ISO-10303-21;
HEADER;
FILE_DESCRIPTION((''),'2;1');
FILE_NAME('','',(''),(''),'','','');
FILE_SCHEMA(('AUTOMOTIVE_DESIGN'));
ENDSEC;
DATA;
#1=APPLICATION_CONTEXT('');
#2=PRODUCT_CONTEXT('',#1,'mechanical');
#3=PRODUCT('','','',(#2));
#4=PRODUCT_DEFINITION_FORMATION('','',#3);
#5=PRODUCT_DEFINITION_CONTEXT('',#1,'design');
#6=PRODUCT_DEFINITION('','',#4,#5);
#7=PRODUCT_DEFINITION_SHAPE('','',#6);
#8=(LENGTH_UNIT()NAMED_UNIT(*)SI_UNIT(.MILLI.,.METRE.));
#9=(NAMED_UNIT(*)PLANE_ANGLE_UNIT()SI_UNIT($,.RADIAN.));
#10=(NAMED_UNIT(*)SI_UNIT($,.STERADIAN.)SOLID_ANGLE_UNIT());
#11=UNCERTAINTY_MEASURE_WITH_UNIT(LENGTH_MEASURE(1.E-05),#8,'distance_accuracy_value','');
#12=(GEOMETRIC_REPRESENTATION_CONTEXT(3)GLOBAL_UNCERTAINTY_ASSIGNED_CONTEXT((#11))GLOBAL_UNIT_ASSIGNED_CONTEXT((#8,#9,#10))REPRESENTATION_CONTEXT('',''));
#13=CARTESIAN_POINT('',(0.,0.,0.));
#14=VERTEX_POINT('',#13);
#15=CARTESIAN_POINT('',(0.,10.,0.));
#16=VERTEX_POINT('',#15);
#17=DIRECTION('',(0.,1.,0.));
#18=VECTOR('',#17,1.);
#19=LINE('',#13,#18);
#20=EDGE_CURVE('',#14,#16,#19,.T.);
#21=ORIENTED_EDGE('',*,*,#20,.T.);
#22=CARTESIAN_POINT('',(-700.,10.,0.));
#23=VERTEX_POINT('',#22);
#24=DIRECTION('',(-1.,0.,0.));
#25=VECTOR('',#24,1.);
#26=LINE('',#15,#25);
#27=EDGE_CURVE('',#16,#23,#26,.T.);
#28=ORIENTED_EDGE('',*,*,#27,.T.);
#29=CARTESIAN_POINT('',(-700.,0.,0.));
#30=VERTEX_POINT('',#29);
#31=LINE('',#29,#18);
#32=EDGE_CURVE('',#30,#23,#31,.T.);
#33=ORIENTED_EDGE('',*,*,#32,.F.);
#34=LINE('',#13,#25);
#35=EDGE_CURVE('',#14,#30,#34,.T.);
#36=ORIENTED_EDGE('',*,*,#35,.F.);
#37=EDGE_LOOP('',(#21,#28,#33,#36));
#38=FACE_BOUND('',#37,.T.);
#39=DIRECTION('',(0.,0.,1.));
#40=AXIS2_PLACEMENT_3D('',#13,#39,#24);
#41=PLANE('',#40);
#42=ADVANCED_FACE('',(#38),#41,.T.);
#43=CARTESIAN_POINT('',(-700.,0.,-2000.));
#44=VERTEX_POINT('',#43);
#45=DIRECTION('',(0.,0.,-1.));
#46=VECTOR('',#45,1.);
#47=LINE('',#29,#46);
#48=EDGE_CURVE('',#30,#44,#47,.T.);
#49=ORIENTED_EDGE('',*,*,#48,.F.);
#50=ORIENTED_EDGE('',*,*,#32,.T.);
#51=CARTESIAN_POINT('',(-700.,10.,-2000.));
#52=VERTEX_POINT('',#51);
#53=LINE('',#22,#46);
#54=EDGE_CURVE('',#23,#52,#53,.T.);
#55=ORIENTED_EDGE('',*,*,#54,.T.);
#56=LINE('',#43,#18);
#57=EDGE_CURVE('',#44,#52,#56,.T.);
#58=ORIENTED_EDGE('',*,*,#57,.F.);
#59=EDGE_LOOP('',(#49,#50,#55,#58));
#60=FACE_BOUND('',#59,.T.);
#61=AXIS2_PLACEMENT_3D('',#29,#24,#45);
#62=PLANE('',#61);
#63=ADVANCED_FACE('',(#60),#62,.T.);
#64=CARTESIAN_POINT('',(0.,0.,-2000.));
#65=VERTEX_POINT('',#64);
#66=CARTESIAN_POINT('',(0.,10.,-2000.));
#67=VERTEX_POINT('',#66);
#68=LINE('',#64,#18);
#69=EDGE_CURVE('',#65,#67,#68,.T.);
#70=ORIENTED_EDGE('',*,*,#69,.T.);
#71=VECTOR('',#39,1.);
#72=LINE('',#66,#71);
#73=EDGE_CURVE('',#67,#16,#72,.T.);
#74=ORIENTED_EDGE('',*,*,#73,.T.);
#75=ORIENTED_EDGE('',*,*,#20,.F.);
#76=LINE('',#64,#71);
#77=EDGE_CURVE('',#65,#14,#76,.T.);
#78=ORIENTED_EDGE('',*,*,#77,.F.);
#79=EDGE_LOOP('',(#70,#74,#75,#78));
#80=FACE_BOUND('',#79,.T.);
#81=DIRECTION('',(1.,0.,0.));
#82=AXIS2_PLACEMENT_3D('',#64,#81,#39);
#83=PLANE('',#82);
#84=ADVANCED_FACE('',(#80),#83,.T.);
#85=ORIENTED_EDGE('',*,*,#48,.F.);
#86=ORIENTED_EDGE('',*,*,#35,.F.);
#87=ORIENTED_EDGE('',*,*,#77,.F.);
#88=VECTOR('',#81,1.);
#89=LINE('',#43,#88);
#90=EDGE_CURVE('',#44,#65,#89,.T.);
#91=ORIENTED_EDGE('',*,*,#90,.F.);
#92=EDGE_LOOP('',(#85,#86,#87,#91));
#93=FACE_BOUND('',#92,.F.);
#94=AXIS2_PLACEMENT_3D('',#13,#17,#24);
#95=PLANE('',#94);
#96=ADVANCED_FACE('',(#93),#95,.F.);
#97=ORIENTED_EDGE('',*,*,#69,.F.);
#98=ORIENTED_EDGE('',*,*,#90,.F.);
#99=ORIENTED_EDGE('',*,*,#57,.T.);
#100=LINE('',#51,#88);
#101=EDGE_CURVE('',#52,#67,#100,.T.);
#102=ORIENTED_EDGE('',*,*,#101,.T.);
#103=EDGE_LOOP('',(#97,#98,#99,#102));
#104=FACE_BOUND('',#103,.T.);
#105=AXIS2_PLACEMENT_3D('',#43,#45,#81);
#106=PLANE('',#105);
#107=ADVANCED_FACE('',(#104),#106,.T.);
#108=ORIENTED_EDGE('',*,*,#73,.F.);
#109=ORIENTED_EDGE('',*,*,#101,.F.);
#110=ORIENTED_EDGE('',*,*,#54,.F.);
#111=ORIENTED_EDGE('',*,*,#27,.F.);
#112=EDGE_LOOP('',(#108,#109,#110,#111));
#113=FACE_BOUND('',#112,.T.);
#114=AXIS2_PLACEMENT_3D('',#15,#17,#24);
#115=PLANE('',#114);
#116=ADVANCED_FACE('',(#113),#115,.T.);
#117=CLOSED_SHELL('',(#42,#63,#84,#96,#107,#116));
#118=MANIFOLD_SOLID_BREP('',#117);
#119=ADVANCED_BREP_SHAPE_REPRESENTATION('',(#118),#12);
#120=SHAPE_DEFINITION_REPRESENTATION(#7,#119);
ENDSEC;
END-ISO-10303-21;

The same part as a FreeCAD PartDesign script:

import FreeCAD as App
import Part
import Sketcher
Q = App.Units.Quantity


def add_polygon(sketch, points):
    """Adds a closed chain of lines whose ends are joined by coincident constraints."""
    first, n = sketch.GeometryCount, len(points)
    for a, b in zip(points, points[1:] + points[:1]):
        sketch.addGeometry(Part.LineSegment(App.Vector(*a, 0), App.Vector(*b, 0)), False)
    for i in range(n):
        sketch.addConstraint(Sketcher.Constraint("Coincident", first + i, 2, first + (i + 1) % n, 1))

doc = App.newDocument("Part")
params = doc.addObject("Spreadsheet::Sheet", "Params")
for row, (alias, value) in enumerate([
    ("sketch1_width", "700 mm"),
    ("sketch1_height", "2000 mm"),
    ("pad1_length", "10 mm"),
], start=1):
    params.set(f"A{row}", alias)
    params.set(f"B{row}", "=" + value)
    params.setAlias(f"B{row}", alias)

body = doc.addObject("PartDesign::Body", "Body")

sketch1 = doc.addObject("Sketcher::SketchObject", "Sketch")
body.addObject(sketch1)
sketch1.AttachmentSupport = (doc.XZ_Plane, [""])
sketch1.MapMode = "FlatFace"
add_polygon(sketch1, [(-700, 0), (0, 0), (0, -2000), (-700, -2000)])
sketch1.addConstraint(Sketcher.Constraint("Horizontal", 0))
sketch1.addConstraint(Sketcher.Constraint("Vertical", 1))
sketch1.addConstraint(Sketcher.Constraint("Horizontal", 2))
sketch1.addConstraint(Sketcher.Constraint("Vertical", 3))
sketch1.addConstraint(Sketcher.Constraint("Coincident", 0, 2, -1, 1))
sketch1.addConstraint(Sketcher.Constraint("DistanceX", 0, 1, 0, 2, Q("700 mm")))
sketch1.addConstraint(Sketcher.Constraint("DistanceY", 1, 2, 1, 1, Q("2000 mm")))
sketch1.setExpression("Constraints[9]", "Params.sketch1_width")
sketch1.setExpression("Constraints[10]", "Params.sketch1_height")
pad1 = doc.addObject("PartDesign::Pad", "Pad")
body.addObject(pad1)
pad1.Profile = sketch1
pad1.setExpression("Length", "Params.pad1_length")
pad1.Reversed = True

doc.recompute()
